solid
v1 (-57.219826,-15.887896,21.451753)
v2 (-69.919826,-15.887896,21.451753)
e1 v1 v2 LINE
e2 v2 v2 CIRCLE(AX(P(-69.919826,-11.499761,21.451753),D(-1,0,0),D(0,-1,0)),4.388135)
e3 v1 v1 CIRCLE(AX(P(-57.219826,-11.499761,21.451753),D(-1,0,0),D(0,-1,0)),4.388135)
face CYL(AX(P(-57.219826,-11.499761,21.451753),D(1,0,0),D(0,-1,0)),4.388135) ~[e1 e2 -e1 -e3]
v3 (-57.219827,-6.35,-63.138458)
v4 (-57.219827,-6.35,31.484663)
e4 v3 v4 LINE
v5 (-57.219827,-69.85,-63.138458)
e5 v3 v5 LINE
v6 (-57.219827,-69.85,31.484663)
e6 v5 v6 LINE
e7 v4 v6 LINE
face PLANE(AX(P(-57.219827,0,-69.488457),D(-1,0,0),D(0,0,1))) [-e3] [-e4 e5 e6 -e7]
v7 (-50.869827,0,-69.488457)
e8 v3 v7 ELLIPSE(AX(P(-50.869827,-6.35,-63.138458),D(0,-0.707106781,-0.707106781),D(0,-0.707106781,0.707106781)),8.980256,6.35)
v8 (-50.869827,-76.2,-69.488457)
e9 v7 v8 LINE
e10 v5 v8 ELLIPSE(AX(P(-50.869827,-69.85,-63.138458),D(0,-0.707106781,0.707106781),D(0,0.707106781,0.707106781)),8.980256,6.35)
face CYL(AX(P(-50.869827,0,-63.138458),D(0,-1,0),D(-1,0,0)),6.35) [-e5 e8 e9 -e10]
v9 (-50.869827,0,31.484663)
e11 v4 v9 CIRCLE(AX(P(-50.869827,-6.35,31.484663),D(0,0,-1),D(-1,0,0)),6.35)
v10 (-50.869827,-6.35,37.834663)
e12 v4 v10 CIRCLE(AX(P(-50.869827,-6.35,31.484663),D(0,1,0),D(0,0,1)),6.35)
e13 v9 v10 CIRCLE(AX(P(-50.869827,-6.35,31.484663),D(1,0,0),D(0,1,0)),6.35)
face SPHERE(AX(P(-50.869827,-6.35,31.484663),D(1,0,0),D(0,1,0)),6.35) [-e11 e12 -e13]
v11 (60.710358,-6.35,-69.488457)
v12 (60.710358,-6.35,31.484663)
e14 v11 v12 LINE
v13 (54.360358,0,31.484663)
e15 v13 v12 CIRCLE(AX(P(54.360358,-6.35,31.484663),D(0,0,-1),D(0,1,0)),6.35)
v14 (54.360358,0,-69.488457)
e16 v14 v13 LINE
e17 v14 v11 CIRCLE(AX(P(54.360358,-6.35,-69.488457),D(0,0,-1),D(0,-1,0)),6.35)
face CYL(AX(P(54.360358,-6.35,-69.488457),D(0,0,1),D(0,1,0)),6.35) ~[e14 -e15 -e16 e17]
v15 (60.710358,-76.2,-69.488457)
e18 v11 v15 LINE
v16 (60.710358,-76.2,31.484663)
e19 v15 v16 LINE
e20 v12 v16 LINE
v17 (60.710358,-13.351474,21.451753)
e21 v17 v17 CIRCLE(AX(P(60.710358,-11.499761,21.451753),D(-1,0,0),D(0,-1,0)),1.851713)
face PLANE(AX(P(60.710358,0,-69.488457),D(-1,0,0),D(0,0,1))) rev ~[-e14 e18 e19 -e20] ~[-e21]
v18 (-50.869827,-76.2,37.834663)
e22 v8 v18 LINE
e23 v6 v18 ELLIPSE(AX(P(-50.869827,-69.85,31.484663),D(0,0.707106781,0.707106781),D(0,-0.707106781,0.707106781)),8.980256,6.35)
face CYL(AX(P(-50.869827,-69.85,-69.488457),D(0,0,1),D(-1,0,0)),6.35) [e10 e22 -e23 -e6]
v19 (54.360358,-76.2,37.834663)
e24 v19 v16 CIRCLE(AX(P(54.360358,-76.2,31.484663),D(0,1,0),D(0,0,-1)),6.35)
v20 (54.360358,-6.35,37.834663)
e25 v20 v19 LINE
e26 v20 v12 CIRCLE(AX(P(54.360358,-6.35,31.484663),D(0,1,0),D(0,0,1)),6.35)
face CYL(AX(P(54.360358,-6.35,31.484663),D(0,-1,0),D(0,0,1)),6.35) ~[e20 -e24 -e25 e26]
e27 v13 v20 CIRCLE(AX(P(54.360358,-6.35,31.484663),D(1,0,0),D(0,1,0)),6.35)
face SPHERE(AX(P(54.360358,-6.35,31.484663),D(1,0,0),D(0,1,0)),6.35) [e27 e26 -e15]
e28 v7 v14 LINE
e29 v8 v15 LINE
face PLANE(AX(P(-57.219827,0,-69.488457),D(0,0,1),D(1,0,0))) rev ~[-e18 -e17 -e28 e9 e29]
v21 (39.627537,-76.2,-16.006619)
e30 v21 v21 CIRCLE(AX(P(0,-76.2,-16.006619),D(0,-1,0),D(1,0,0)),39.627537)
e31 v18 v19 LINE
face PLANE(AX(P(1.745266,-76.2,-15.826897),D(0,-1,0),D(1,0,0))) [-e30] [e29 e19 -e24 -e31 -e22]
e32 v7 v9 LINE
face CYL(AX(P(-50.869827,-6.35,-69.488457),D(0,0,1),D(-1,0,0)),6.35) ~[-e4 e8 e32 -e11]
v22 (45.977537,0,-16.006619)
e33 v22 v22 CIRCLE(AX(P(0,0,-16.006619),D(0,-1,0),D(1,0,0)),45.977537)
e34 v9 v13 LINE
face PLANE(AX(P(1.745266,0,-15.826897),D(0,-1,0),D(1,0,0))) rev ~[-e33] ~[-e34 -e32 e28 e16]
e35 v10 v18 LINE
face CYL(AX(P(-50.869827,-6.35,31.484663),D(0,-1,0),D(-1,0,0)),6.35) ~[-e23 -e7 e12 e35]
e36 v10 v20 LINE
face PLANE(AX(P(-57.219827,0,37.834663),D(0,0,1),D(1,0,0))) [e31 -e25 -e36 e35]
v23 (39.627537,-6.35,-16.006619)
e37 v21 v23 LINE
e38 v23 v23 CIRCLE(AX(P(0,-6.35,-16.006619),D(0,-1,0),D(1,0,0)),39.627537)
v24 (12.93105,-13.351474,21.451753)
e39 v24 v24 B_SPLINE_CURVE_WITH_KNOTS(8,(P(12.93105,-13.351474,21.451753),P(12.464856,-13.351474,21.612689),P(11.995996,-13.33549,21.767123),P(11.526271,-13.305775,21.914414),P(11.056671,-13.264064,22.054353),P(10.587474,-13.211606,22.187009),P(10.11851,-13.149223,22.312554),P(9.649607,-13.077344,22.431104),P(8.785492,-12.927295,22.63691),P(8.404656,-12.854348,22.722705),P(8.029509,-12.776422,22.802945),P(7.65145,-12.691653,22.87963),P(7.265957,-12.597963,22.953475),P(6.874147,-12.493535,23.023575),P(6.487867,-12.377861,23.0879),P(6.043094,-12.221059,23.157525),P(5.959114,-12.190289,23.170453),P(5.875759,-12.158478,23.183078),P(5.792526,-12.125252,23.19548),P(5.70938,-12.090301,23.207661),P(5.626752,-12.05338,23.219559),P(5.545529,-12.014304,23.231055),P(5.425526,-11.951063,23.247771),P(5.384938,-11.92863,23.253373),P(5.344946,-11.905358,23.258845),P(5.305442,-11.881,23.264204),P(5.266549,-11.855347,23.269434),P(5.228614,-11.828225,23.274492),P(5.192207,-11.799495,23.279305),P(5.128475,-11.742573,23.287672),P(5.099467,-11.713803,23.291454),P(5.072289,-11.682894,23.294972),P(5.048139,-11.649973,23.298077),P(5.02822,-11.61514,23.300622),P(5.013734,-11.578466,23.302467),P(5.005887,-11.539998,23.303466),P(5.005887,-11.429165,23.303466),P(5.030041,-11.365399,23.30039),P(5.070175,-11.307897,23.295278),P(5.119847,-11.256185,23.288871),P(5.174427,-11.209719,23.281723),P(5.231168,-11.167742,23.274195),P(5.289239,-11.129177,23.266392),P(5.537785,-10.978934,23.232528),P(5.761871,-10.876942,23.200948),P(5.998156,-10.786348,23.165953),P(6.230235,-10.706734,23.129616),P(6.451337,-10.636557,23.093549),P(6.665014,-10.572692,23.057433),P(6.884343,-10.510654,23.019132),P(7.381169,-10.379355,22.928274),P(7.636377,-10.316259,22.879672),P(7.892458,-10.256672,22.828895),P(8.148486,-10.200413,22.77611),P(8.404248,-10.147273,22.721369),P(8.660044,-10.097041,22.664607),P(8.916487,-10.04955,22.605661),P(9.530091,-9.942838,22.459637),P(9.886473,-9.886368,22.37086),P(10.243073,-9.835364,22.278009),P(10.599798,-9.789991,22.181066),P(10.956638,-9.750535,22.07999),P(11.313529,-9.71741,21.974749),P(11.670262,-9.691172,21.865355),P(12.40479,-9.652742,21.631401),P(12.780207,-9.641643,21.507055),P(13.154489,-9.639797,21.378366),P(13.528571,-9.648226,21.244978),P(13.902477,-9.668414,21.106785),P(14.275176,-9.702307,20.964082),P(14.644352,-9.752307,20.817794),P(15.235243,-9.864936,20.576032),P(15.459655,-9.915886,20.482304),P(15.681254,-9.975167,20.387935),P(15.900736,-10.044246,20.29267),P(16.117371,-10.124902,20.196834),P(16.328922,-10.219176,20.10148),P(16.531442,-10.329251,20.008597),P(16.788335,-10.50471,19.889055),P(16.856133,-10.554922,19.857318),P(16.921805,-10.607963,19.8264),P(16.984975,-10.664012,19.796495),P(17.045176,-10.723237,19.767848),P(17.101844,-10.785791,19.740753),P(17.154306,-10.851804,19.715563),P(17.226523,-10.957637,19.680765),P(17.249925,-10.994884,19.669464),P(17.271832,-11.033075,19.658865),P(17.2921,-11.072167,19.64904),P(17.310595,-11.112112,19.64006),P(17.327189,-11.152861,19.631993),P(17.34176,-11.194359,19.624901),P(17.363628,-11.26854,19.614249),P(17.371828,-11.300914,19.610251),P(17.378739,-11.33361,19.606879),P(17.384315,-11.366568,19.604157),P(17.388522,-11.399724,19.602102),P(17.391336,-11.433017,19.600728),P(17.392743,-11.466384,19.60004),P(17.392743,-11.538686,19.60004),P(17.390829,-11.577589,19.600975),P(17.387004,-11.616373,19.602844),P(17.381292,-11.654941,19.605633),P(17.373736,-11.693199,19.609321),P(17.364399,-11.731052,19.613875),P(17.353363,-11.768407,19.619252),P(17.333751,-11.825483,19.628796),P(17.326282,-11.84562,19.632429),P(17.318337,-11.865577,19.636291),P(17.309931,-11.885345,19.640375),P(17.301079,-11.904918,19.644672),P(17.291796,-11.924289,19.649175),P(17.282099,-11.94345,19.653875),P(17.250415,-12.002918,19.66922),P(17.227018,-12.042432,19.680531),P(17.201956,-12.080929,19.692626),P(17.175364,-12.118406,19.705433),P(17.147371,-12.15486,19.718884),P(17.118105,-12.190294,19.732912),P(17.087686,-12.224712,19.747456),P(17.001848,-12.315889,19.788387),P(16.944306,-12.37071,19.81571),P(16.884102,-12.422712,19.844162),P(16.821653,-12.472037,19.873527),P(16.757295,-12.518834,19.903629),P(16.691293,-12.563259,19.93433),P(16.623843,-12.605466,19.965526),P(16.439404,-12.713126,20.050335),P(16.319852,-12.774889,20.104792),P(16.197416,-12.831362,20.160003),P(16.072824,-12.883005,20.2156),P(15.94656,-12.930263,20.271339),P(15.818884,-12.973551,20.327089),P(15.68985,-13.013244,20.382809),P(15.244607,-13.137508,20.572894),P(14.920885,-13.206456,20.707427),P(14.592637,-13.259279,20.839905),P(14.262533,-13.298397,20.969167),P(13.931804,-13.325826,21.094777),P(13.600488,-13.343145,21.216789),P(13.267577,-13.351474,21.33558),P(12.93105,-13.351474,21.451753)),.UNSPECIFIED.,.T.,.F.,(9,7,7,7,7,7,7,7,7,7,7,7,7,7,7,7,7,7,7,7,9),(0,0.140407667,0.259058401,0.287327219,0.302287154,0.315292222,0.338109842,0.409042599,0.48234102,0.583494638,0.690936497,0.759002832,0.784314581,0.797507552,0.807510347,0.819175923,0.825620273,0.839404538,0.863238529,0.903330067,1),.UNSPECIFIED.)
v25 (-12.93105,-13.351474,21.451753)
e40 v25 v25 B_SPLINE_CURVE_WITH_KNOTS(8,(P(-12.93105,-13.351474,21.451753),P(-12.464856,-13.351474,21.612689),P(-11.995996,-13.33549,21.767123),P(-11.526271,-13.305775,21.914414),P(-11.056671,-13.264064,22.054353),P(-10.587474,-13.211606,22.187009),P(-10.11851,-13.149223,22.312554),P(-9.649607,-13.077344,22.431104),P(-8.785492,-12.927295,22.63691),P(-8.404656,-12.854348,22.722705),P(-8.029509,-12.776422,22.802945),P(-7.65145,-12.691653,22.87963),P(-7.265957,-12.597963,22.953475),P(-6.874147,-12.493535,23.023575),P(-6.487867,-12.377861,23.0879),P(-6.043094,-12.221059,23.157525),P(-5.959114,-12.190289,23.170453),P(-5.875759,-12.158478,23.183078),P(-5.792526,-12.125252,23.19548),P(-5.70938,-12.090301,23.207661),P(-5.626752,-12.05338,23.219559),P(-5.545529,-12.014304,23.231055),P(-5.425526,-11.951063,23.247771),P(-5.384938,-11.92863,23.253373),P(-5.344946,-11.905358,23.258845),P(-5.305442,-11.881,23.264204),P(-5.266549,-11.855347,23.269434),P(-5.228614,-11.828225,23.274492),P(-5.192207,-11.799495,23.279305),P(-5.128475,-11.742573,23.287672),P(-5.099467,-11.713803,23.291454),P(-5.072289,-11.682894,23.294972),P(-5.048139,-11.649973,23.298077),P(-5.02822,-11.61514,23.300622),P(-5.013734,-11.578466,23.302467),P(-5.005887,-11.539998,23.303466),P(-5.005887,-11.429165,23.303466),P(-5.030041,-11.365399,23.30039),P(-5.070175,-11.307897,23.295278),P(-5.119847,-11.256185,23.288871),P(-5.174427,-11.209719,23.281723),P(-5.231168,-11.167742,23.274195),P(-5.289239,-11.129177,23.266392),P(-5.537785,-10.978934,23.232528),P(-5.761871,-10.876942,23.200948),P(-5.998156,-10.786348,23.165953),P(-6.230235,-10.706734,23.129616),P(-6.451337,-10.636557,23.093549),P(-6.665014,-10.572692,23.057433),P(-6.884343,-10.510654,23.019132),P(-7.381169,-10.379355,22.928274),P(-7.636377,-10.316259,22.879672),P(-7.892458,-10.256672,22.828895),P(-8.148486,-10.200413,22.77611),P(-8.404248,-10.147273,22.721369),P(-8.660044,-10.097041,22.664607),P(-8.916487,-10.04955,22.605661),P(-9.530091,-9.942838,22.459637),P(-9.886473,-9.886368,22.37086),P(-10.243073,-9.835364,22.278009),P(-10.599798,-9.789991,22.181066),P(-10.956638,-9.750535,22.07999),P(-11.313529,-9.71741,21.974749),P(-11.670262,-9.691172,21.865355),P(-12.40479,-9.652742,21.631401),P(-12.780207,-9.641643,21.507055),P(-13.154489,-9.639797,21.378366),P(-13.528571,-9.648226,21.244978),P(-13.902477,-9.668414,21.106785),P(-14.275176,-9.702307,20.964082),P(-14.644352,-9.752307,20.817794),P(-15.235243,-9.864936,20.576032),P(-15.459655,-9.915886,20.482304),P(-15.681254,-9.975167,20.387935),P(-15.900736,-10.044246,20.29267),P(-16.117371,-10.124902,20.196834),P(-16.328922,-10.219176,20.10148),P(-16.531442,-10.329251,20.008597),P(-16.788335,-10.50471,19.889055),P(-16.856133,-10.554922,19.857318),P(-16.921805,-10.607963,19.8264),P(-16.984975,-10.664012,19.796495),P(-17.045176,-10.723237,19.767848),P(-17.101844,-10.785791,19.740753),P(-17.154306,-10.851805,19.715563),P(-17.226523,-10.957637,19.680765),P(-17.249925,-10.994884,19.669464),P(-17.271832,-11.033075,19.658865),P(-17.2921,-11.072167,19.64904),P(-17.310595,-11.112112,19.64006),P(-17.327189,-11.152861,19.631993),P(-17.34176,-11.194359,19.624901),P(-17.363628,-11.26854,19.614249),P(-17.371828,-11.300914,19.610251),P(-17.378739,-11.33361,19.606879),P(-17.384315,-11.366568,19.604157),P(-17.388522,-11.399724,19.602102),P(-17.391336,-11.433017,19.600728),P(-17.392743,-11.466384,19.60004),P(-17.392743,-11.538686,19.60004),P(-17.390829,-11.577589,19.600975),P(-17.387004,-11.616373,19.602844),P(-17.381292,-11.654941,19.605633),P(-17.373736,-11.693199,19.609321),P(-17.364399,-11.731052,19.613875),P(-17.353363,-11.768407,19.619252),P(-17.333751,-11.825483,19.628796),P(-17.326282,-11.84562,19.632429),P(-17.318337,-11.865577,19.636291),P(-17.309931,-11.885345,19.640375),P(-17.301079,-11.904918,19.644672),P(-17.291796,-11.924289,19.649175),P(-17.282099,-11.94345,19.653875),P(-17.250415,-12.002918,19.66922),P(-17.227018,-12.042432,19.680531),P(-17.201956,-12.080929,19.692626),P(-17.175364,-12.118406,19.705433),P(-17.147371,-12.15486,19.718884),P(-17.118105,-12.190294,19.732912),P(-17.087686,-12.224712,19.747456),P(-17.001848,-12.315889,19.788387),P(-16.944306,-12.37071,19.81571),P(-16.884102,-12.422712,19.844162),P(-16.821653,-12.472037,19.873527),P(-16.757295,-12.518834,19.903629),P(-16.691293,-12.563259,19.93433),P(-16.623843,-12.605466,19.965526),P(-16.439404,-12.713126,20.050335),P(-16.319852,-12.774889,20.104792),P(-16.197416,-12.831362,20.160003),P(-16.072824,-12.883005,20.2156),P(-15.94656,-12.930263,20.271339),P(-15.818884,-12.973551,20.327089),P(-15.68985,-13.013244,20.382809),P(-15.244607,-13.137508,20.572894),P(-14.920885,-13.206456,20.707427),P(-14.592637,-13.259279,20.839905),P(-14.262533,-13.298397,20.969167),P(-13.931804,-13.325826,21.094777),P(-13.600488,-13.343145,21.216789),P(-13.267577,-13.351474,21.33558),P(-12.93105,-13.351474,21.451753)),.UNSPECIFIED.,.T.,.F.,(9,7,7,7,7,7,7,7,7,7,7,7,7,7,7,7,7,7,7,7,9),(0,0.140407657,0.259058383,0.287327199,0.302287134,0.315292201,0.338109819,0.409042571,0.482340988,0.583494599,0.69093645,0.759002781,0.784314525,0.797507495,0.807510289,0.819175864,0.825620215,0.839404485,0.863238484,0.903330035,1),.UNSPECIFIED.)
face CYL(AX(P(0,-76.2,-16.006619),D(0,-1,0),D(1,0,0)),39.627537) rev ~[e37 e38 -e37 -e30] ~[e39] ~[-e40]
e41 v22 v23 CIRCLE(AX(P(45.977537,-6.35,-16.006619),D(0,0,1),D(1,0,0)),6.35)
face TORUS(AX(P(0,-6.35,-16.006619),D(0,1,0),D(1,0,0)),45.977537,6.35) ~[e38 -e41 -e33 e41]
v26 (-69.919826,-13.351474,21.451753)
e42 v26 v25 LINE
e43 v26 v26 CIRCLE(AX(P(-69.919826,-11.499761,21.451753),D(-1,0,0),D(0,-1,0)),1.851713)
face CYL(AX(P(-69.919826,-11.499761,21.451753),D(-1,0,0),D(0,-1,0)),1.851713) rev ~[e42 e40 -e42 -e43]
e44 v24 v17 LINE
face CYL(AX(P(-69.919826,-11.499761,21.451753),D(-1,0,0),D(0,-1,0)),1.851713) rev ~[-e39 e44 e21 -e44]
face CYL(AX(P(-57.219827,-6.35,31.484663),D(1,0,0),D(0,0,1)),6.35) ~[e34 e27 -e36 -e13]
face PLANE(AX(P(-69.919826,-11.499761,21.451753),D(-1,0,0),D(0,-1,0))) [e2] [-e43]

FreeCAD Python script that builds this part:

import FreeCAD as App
import Part
import Sketcher
Q = App.Units.Quantity


def edges_at(feature, points):
    """Names of the edges that pass closest to the given points."""
    edges = feature.Shape.Edges
    near = lambda p: min(range(len(edges)), key=lambda i: edges[i].distToShape(Part.Vertex(*p))[0])
    return sorted({f"Edge{near(p) + 1}" for p in points})


def add_polygon(sketch, points):
    """Adds a closed chain of lines whose ends are joined by coincident constraints."""
    first, n = sketch.GeometryCount, len(points)
    for a, b in zip(points, points[1:] + points[:1]):
        sketch.addGeometry(Part.LineSegment(App.Vector(*a, 0), App.Vector(*b, 0)), False)
    for i in range(n):
        sketch.addConstraint(Sketcher.Constraint("Coincident", first + i, 2, first + (i + 1) % n, 1))

doc = App.newDocument("Part")
body = doc.addObject("PartDesign::Body", "Body")

sketch1 = body.newObject("Sketcher::SketchObject", "Sketch")
sketch1.AttachmentSupport = (doc.getObject("XZ_Plane"), [""])
sketch1.MapMode = "FlatFace"
add_polygon(sketch1, [(-57, 38), (-57, -69), (61, -69), (61, 38)])
sketch1.addConstraint(Sketcher.Constraint("Vertical", 0))
sketch1.addConstraint(Sketcher.Constraint("Horizontal", 1))
sketch1.addConstraint(Sketcher.Constraint("Vertical", 2))
sketch1.addConstraint(Sketcher.Constraint("Horizontal", 3))
sketch1.addConstraint(Sketcher.Constraint("DistanceY", 0, 2, 0, 1, 107.323121))
sketch1.addConstraint(Sketcher.Constraint("DistanceX", 1, 1, 1, 2, 117.930185))
sketch1.addConstraint(Sketcher.Constraint("DistanceX", -1, 1, 1, 2, 60.710358))
sketch1.addConstraint(Sketcher.Constraint("DistanceY", 0, 2, -1, 1, 69.488457))
pad1 = body.newObject("PartDesign::Pad", "Pad")
pad1.Profile = sketch1
pad1.Length = Q("3 in")

sketch2 = body.newObject("Sketcher::SketchObject", "Sketch001")
sketch2.AttachmentSupport = (doc.getObject("XZ_Plane"), [""])
sketch2.MapMode = "FlatFace"
sketch2.AttachmentOffset = App.Placement(App.Vector(0, 0, 3 * 25.4), App.Rotation())
sketch2.addGeometry(Part.Circle(App.Vector(0, -16, 0), App.Vector(0, 0, 1), 40), False)
sketch2.addConstraint(Sketcher.Constraint("PointOnObject", 0, 3, -2))
sketch2.addConstraint(Sketcher.Constraint("Diameter", 0, 79.255074))
sketch2.addConstraint(Sketcher.Constraint("DistanceY", 0, 3, -1, 1, 16.006619))
pocket1 = body.newObject("PartDesign::Pocket", "Pocket")
pocket1.Profile = sketch2
pocket1.Length = Q("3 in")
doc.recompute()

fillet = body.newObject("PartDesign::Fillet", "Fillet")
fillet.Base = (pocket1, edges_at(pocket1, [(1.745, 0, 37.835), (-39.628, 0, -16.007)]))
fillet.Radius = Q("0.25 in")
doc.recompute()

fillet2 = body.newObject("PartDesign::Fillet", "Fillet001")
fillet2.Base = (fillet, edges_at(fillet, [
    (60.71, 0, -19.002),
    (-57.22, -41.275, 37.835),
    (-57.22, -1.86, 35.975),
    (-57.22, -76.2, -15.827),
    (-57.22, 0, -19.002),
    (-57.22, -38.1, -69.488),
]))
fillet2.Radius = Q("0.25 in")

sketch3 = body.newObject("Sketcher::SketchObject", "Sketch002")
sketch3.AttachmentSupport = (doc.getObject("YZ_Plane"), [""])
sketch3.MapMode = "FlatFace"
sketch3.AttachmentOffset = App.Placement(App.Vector(0, 0, -57.219826), App.Rotation())
sketch3.addGeometry(Part.Circle(App.Vector(-11.5, 21.5, 0), App.Vector(0, 0, 1), 4.4), False)
sketch3.addConstraint(Sketcher.Constraint("Diameter", 0, 8.77627))
sketch3.addConstraint(Sketcher.Constraint("DistanceX", 0, 3, -1, 1, 11.499761))
sketch3.addConstraint(Sketcher.Constraint("DistanceY", -1, 1, 0, 3, 21.451753))
pad2 = body.newObject("PartDesign::Pad", "Pad001")
pad2.Profile = sketch3
pad2.Length = Q("0.5 in")
pad2.Reversed = True

sketch4 = body.newObject("Sketcher::SketchObject", "Sketch003")
sketch4.AttachmentSupport = (doc.getObject("YZ_Plane"), [""])
sketch4.MapMode = "FlatFace"
sketch4.AttachmentOffset = App.Placement(App.Vector(0, 0, -69.919826), App.Rotation())
sketch4.addGeometry(Part.Circle(App.Vector(-11.5, 21.5, 0), App.Vector(0, 0, 1), 1.9), False)
sketch4.addConstraint(Sketcher.Constraint("Diameter", 0, 3.703426))
sketch4.addConstraint(Sketcher.Constraint("DistanceX", 0, 3, -1, 1, 11.499761))
sketch4.addConstraint(Sketcher.Constraint("DistanceY", -1, 1, 0, 3, 21.451753))
pocket2 = body.newObject("PartDesign::Pocket", "Pocket001")
pocket2.Profile = sketch4
pocket2.Length = Q("6 in")
pocket2.Reversed = True

doc.recompute()
